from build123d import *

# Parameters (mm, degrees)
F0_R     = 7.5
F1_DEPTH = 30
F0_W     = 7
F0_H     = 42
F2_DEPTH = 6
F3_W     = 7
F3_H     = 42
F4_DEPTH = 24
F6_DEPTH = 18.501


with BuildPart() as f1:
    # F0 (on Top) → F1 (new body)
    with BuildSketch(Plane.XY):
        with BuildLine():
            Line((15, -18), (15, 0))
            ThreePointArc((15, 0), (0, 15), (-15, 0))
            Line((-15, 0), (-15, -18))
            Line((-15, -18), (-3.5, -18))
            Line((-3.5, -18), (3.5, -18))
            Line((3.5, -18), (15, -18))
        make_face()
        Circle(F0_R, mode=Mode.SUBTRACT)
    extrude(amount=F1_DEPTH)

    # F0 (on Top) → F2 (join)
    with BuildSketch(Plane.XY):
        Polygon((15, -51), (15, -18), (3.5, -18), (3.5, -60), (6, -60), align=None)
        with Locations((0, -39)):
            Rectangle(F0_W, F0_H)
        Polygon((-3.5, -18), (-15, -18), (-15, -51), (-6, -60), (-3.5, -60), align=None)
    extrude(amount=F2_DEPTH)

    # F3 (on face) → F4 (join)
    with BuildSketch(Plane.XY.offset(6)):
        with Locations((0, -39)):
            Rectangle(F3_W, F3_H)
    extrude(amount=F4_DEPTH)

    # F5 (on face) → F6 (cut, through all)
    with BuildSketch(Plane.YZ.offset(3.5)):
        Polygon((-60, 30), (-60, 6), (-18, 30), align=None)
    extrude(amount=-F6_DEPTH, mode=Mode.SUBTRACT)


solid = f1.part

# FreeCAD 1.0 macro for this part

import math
import FreeCAD as App
import Part
import Sketcher


def add_polygon(sketch, points):
    """Adds a closed chain of lines whose ends are joined by coincident constraints."""
    first, n = sketch.GeometryCount, len(points)
    for a, b in zip(points, points[1:] + points[:1]):
        sketch.addGeometry(Part.LineSegment(App.Vector(*a, 0), App.Vector(*b, 0)), False)
    for i in range(n):
        sketch.addConstraint(Sketcher.Constraint("Coincident", first + i, 2, first + (i + 1) % n, 1))

doc = App.newDocument("Part")
params = doc.addObject("Spreadsheet::Sheet", "Params")
for row, (alias, value) in enumerate([
    ("sketch1_diameter", "15 mm"),
    ("sketch1_radius", "15 mm"),
    ("sketch1_height", "18 mm"),
    ("pad1_length", "30 mm"),
    ("sketch2_width", "30 mm"),
    ("sketch2_width2", "12 mm"),
    ("sketch2_height", "33 mm"),
    ("pad2_length", "6 mm"),
    ("sketch3_width", "7 mm"),
    ("sketch3_height", "42 mm"),
    ("pad3_length", "24 mm"),
    ("sketch4_width", "42 mm"),
    ("sketch4_height", "24 mm"),
], start=1):
    params.set(f"A{row}", alias)
    params.set(f"B{row}", "=" + value)
    params.setAlias(f"B{row}", alias)

body = doc.addObject("PartDesign::Body", "Body")

# Sketch on XY plane
sketch1 = doc.addObject("Sketcher::SketchObject", "Sketch")
body.addObject(sketch1)
sketch1.AttachmentSupport = (doc.XY_Plane, [""])
sketch1.MapMode = "FlatFace"
sketch1.addGeometry([
    Part.LineSegment(App.Vector(15, -18, 0), App.Vector(15, 0, 0)),  # 0
    Part.ArcOfCircle(Part.Circle(App.Vector(0, 0, 0), App.Vector(0, 0, 1), 15), math.radians(0), math.radians(180)),  # 1
    Part.LineSegment(App.Vector(-15, 0, 0), App.Vector(-15, -18, 0)),  # 2
    Part.LineSegment(App.Vector(-15, -18, 0), App.Vector(15, -18, 0)),  # 3
    Part.Circle(App.Vector(0, 0, 0), App.Vector(0, 0, 1), 8),  # 4
], False)
sketch1.addConstraint([
    Sketcher.Constraint("Tangent", 0, 2, 1, 1),
    Sketcher.Constraint("Tangent", 1, 2, 2, 1),
    Sketcher.Constraint("Coincident", 2, 2, 3, 1),
    Sketcher.Constraint("Coincident", 3, 2, 0, 1),
    Sketcher.Constraint("Vertical", 0),
    Sketcher.Constraint("Vertical", 2),
    Sketcher.Constraint("Horizontal", 3),
    Sketcher.Constraint("Coincident", 1, 3, -1, 1),
    Sketcher.Constraint("Coincident", 4, 3, -1, 1),
    Sketcher.Constraint("Diameter", 4, 15.0),
    Sketcher.Constraint("Radius", 1, 15.0),
    Sketcher.Constraint("DistanceY", 0, 1, 0, 2, 18.0),
])
sketch1.setExpression("Constraints[9]", "Params.sketch1_diameter")
sketch1.setExpression("Constraints[10]", "Params.sketch1_radius")
sketch1.setExpression("Constraints[11]", "Params.sketch1_height")
pad1 = doc.addObject("PartDesign::Pad", "Pad")
body.addObject(pad1)
pad1.Profile = sketch1
pad1.setExpression("Length", "Params.pad1_length")

# Sketch on XY plane
sketch2 = doc.addObject("Sketcher::SketchObject", "Sketch001")
body.addObject(sketch2)
sketch2.AttachmentSupport = (doc.XY_Plane, [""])
sketch2.MapMode = "FlatFace"
add_polygon(sketch2, [(15, -51), (15, -18), (-15, -18), (-15, -51), (-6, -60), (6, -60)])  # lines 0-5
sketch2.addConstraint([
    Sketcher.Constraint("Vertical", 0),
    Sketcher.Constraint("Horizontal", 1),
    Sketcher.Constraint("Vertical", 2),
    Sketcher.Constraint("Horizontal", 4),
    Sketcher.Constraint("Symmetric", 2, 2, 5, 2, -2),
    Sketcher.Constraint("Perpendicular", 3, 5),
    Sketcher.Constraint("Equal", 3, 5),
    Sketcher.Constraint("DistanceX", 1, 2, 1, 1, 30.0),
    Sketcher.Constraint("DistanceX", 4, 1, 4, 2, 12.0),
    Sketcher.Constraint("DistanceY", 0, 1, 0, 2, 33.0),
    Sketcher.Constraint("DistanceY", 0, 2, -1, 1, 18.0),
])
sketch2.setExpression("Constraints[13]", "Params.sketch2_width")
sketch2.setExpression("Constraints[14]", "Params.sketch2_width2")
sketch2.setExpression("Constraints[15]", "Params.sketch2_height")
pad2 = doc.addObject("PartDesign::Pad", "Pad001")
body.addObject(pad2)
pad2.Profile = sketch2
pad2.setExpression("Length", "Params.pad2_length")

# Sketch on XY plane
sketch3 = doc.addObject("Sketcher::SketchObject", "Sketch002")
body.addObject(sketch3)
sketch3.AttachmentSupport = (doc.XY_Plane, [""])
sketch3.MapMode = "FlatFace"
sketch3.AttachmentOffset = App.Placement(App.Vector(0, 0, 6), App.Rotation())
add_polygon(sketch3, [(-4, -18), (-4, -60), (4, -60), (4, -18)])  # lines 0-3
sketch3.addConstraint([
    Sketcher.Constraint("Vertical", 0),
    Sketcher.Constraint("Horizontal", 1),
    Sketcher.Constraint("Vertical", 2),
    Sketcher.Constraint("Horizontal", 3),
    Sketcher.Constraint("DistanceX", 1, 1, 1, 2, 7.0),
    Sketcher.Constraint("DistanceY", 0, 2, 0, 1, 42.0),
    Sketcher.Constraint("DistanceY", 0, 2, -1, 1, 60.0),
    Sketcher.Constraint("DistanceX", 0, 2, -1, 1, 3.5),
])
sketch3.setExpression("Constraints[8]", "Params.sketch3_width")
sketch3.setExpression("Constraints[9]", "Params.sketch3_height")
pad3 = doc.addObject("PartDesign::Pad", "Pad002")
body.addObject(pad3)
pad3.Profile = sketch3
pad3.setExpression("Length", "Params.pad3_length")

# Sketch on YZ plane
sketch4 = doc.addObject("Sketcher::SketchObject", "Sketch003")
body.addObject(sketch4)
sketch4.AttachmentSupport = (doc.YZ_Plane, [""])
sketch4.MapMode = "FlatFace"
sketch4.AttachmentOffset = App.Placement(App.Vector(0, 0, 3.5), App.Rotation())
add_polygon(sketch4, [(-60, 30), (-60, 6), (-18, 30)])  # lines 0-2
sketch4.addConstraint([
    Sketcher.Constraint("Vertical", 0),
    Sketcher.Constraint("Horizontal", 2),
    Sketcher.Constraint("DistanceX", 2, 2, 2, 1, 42.0),
    Sketcher.Constraint("DistanceY", 0, 2, 0, 1, 24.0),
    Sketcher.Constraint("DistanceX", 0, 2, -1, 1, 60.0),
    Sketcher.Constraint("DistanceY", -1, 1, 0, 2, 6.0),
])
sketch4.setExpression("Constraints[5]", "Params.sketch4_width")
sketch4.setExpression("Constraints[6]", "Params.sketch4_height")
pocket1 = doc.addObject("PartDesign::Pocket", "Pocket")
body.addObject(pocket1)
pocket1.Profile = sketch4
pocket1.Type = "ThroughAll"

doc.recompute()
